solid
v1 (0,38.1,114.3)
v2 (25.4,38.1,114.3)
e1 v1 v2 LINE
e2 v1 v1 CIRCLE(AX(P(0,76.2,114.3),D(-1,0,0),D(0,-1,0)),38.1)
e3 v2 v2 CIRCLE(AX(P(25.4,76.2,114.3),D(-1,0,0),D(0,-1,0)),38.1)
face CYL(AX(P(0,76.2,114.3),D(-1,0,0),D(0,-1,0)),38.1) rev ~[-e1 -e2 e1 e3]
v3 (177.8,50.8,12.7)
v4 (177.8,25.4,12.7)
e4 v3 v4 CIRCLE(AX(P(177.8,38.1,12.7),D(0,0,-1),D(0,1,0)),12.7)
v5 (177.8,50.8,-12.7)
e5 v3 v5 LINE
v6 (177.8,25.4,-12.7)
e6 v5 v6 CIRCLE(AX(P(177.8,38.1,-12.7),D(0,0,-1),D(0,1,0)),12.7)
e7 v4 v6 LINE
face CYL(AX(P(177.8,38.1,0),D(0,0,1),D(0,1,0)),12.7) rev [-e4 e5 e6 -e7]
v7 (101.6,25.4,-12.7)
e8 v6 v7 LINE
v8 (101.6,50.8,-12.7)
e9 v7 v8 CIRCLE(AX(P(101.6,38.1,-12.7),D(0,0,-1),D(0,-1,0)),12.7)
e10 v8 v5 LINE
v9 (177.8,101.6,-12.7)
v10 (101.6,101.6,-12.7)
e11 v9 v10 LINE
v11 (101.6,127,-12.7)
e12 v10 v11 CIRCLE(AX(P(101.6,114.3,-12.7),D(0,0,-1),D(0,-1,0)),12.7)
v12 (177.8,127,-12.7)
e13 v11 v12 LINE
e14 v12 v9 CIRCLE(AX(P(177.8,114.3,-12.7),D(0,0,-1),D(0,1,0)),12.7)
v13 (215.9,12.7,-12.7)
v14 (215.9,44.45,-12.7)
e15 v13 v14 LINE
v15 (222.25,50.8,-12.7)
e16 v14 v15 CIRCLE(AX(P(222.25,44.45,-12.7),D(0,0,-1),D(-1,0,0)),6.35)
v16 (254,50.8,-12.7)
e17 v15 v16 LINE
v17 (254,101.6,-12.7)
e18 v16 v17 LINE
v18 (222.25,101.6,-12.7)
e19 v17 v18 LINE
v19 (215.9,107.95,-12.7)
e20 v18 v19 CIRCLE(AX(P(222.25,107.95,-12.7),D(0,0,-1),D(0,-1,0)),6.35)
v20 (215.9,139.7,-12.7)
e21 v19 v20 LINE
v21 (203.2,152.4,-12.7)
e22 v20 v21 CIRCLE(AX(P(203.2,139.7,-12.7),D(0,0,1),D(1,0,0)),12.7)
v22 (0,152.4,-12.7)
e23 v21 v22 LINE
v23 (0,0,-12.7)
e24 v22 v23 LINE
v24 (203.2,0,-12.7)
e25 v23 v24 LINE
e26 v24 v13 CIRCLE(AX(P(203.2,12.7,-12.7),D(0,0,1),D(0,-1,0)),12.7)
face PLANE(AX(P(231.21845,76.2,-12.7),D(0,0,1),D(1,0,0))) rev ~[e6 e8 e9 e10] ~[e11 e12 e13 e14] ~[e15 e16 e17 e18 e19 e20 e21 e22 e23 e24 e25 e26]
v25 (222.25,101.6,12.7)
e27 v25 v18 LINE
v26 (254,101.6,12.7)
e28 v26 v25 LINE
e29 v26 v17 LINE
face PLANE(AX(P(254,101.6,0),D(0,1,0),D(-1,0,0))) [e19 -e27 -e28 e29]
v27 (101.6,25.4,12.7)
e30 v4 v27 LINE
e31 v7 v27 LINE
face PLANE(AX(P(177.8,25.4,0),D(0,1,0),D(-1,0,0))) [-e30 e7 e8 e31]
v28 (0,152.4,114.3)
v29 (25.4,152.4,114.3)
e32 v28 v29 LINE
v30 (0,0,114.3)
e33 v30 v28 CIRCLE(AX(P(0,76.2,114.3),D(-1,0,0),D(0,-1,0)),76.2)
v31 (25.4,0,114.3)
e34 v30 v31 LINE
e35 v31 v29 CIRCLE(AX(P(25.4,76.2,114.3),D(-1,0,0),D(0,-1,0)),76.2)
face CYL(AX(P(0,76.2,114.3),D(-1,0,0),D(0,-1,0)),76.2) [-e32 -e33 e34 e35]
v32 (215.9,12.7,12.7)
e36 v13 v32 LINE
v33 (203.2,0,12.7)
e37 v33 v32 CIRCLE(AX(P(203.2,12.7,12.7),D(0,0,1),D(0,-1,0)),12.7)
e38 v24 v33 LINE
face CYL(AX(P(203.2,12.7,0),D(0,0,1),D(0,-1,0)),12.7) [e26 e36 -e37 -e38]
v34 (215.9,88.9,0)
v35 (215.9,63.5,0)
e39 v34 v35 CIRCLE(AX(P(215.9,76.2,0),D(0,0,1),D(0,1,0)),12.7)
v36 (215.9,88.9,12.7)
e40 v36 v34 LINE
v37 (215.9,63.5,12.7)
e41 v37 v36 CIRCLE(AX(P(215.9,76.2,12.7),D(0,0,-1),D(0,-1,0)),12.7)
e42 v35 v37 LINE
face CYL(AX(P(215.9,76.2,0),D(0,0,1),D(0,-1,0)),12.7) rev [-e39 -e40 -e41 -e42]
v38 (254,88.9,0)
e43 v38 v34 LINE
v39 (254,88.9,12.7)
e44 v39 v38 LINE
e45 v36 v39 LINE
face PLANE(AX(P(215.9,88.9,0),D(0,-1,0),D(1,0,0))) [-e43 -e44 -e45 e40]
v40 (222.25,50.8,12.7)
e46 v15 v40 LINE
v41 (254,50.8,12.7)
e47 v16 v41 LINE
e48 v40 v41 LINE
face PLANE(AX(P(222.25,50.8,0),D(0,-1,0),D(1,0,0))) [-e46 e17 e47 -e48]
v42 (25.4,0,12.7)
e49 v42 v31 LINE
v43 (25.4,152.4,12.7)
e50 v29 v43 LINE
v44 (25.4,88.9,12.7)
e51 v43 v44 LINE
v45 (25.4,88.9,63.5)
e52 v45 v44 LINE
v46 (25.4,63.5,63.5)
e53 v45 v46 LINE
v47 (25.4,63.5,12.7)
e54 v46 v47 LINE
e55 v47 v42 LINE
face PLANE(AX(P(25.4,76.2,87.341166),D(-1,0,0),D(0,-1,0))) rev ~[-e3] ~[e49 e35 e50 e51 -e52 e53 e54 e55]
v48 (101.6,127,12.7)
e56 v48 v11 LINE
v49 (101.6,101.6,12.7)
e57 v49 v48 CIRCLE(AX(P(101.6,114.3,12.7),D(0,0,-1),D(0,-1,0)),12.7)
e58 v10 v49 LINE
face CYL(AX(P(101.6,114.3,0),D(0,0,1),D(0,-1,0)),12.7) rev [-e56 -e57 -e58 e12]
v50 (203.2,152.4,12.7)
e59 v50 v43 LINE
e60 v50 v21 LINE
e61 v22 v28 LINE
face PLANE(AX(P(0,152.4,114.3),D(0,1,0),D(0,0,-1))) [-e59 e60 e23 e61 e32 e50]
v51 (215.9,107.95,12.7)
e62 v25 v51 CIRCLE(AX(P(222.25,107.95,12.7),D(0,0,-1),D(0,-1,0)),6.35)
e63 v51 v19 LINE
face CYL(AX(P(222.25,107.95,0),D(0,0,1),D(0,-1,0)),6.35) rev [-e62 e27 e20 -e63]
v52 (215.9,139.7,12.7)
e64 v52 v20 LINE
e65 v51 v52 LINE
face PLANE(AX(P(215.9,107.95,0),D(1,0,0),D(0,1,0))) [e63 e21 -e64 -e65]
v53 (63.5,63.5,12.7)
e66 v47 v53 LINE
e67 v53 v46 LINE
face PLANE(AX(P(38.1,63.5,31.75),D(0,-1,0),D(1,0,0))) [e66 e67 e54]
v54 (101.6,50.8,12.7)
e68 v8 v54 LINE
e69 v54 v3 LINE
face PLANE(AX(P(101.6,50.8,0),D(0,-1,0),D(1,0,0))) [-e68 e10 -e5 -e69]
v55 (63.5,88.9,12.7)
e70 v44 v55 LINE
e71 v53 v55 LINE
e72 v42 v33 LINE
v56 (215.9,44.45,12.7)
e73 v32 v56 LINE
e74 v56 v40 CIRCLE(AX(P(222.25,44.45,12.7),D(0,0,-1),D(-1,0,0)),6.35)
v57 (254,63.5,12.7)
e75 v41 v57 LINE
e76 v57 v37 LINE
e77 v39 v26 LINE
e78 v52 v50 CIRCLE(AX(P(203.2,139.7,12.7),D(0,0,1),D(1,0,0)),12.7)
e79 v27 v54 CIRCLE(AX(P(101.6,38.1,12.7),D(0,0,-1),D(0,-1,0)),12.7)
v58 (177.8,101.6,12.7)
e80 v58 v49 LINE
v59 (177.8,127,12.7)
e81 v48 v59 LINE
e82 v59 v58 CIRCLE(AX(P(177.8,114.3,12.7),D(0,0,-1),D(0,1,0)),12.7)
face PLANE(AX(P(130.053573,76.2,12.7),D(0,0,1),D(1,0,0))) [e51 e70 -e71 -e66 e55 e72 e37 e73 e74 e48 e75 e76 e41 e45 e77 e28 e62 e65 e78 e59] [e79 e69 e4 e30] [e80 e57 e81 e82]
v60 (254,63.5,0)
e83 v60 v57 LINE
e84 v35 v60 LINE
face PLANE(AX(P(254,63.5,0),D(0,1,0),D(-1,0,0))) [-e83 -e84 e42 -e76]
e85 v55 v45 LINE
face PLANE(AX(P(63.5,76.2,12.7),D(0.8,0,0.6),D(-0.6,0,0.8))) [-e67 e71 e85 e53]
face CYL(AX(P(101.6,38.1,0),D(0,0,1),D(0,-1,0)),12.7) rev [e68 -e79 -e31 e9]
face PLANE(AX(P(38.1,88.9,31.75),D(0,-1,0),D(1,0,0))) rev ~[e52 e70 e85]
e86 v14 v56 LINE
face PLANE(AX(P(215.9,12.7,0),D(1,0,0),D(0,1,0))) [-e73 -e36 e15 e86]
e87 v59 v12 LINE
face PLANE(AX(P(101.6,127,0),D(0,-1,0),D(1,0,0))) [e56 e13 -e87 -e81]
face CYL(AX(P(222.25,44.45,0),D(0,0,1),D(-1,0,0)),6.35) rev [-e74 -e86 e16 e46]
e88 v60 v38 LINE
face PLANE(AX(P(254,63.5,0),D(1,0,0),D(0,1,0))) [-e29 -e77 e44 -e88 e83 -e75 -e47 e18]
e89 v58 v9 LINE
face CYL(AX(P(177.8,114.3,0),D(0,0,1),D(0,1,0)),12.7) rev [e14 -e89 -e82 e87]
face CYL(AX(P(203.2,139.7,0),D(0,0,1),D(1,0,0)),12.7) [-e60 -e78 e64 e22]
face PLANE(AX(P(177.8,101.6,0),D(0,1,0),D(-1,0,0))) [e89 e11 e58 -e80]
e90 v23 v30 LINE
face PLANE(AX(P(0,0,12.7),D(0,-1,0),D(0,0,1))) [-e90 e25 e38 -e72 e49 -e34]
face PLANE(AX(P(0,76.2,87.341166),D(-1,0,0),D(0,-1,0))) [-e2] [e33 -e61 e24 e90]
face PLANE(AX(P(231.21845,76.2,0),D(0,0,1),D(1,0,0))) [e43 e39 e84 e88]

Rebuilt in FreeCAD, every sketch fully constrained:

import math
import FreeCAD as App
import Part
import Sketcher
from FreeCAD import Vector
Q = App.Units.Quantity

doc = App.newDocument("Part")
params = doc.addObject("Spreadsheet::Sheet", "Params")
for row, (alias, value) in enumerate([
    ("sketch1_radius", "0.5 in"),
    ("sketch1_width", "8 in"),
    ("sketch1_width2", "3 in"),
    ("sketch1_height", "6 in"),
    ("sketch1_radius2", "0.25 in"),
    ("pad1_length", "1 in"),
    ("sketch2_radius", "0.5 in"),
    ("sketch2_width", "1.5 in"),
    ("pad2_length", "0.5 in"),
    ("sketch3_diameter", "3 in"),
    ("sketch3_radius", "3 in"),
    ("sketch3_height", "4 in"),
    ("pad3_length", "1 in"),
    ("sketch4_height", "2 in"),
    ("sketch4_width", "1.5 in"),
    ("pad4_length", "1 in"),
], start=1):
    params.set(f"A{row}", alias)
    params.set(f"B{row}", "=" + value)
    params.setAlias(f"B{row}", alias)

body = doc.addObject("PartDesign::Body", "Body")

# Sketch on XY plane
sketch1 = body.newObject("Sketcher::SketchObject", "Sketch")
sketch1.AttachmentSupport = (doc.getObject("XY_Plane"), [""])
sketch1.MapMode = "FlatFace"
sketch1.addGeometry(Part.LineSegment(Vector(0, 152.4, 0), Vector(0, 0, 0)), False)
sketch1.addGeometry(Part.LineSegment(Vector(0, 0, 0), Vector(203.2, 0, 0)), False)
sketch1.addGeometry(Part.ArcOfCircle(Part.Circle(Vector(203.2, 12.7, 0), Vector(0, 0, 1), 12.7), math.radians(-90), math.radians(0)), False)
sketch1.addGeometry(Part.LineSegment(Vector(215.9, 12.7, 0), Vector(215.9, 44.45, 0)), False)
sketch1.addGeometry(Part.ArcOfCircle(Part.Circle(Vector(222.25, 44.45, 0), Vector(0, 0, 1), 6.35), math.radians(90), math.radians(180)), False)
sketch1.addGeometry(Part.LineSegment(Vector(222.25, 50.8, 0), Vector(254, 50.8, 0)), False)
sketch1.addGeometry(Part.LineSegment(Vector(254, 50.8, 0), Vector(254, 63.5, 0)), False)
sketch1.addGeometry(Part.LineSegment(Vector(254, 63.5, 0), Vector(215.9, 63.5, 0)), False)
sketch1.addGeometry(Part.ArcOfCircle(Part.Circle(Vector(215.9, 76.2, 0), Vector(0, 0, 1), 12.7), math.radians(90), math.radians(270)), False)
sketch1.addGeometry(Part.LineSegment(Vector(215.9, 88.9, 0), Vector(254, 88.9, 0)), False)
sketch1.addGeometry(Part.LineSegment(Vector(254, 88.9, 0), Vector(254, 101.6, 0)), False)
sketch1.addGeometry(Part.LineSegment(Vector(254, 101.6, 0), Vector(222.25, 101.6, 0)), False)
sketch1.addGeometry(Part.ArcOfCircle(Part.Circle(Vector(222.25, 107.95, 0), Vector(0, 0, 1), 6.35), math.radians(180), math.radians(270)), False)
sketch1.addGeometry(Part.LineSegment(Vector(215.9, 107.95, 0), Vector(215.9, 139.7, 0)), False)
sketch1.addGeometry(Part.ArcOfCircle(Part.Circle(Vector(203.2, 139.7, 0), Vector(0, 0, 1), 12.7), math.radians(0), math.radians(90)), False)
sketch1.addGeometry(Part.LineSegment(Vector(203.2, 152.4, 0), Vector(0, 152.4, 0)), False)
sketch1.addGeometry(Part.LineSegment(Vector(177.8, 25.4, 0), Vector(101.6, 25.4, 0)), False)
sketch1.addGeometry(Part.ArcOfCircle(Part.Circle(Vector(101.6, 38.1, 0), Vector(0, 0, 1), 12.7), math.radians(90), math.radians(270)), False)
sketch1.addGeometry(Part.LineSegment(Vector(101.6, 50.8, 0), Vector(177.8, 50.8, 0)), False)
sketch1.addGeometry(Part.ArcOfCircle(Part.Circle(Vector(177.8, 38.1, 0), Vector(0, 0, 1), 12.7), math.radians(-90), math.radians(90)), False)
sketch1.addGeometry(Part.LineSegment(Vector(177.8, 101.6, 0), Vector(101.6, 101.6, 0)), False)
sketch1.addGeometry(Part.ArcOfCircle(Part.Circle(Vector(101.6, 114.3, 0), Vector(0, 0, 1), 12.7), math.radians(90), math.radians(270)), False)
sketch1.addGeometry(Part.LineSegment(Vector(101.6, 127, 0), Vector(177.8, 127, 0)), False)
sketch1.addGeometry(Part.ArcOfCircle(Part.Circle(Vector(177.8, 114.3, 0), Vector(0, 0, 1), 12.7), math.radians(-90), math.radians(90)), False)
sketch1.addConstraint(Sketcher.Constraint("Coincident", 0, 2, 1, 1))
sketch1.addConstraint(Sketcher.Constraint("Tangent", 1, 2, 2, 1))
sketch1.addConstraint(Sketcher.Constraint("Tangent", 2, 2, 3, 1))
sketch1.addConstraint(Sketcher.Constraint("Tangent", 3, 2, 4, 2))
sketch1.addConstraint(Sketcher.Constraint("Tangent", 4, 1, 5, 1))
sketch1.addConstraint(Sketcher.Constraint("Coincident", 5, 2, 6, 1))
sketch1.addConstraint(Sketcher.Constraint("Coincident", 6, 2, 7, 1))
sketch1.addConstraint(Sketcher.Constraint("Tangent", 7, 2, 8, 2))
sketch1.addConstraint(Sketcher.Constraint("Tangent", 8, 1, 9, 1))
sketch1.addConstraint(Sketcher.Constraint("Coincident", 9, 2, 10, 1))
sketch1.addConstraint(Sketcher.Constraint("Coincident", 10, 2, 11, 1))
sketch1.addConstraint(Sketcher.Constraint("Tangent", 11, 2, 12, 2))
sketch1.addConstraint(Sketcher.Constraint("Tangent", 12, 1, 13, 1))
sketch1.addConstraint(Sketcher.Constraint("Tangent", 13, 2, 14, 1))
sketch1.addConstraint(Sketcher.Constraint("Tangent", 14, 2, 15, 1))
sketch1.addConstraint(Sketcher.Constraint("Coincident", 15, 2, 0, 1))
sketch1.addConstraint(Sketcher.Constraint("Tangent", 16, 2, 17, 2))
sketch1.addConstraint(Sketcher.Constraint("Tangent", 17, 1, 18, 1))
sketch1.addConstraint(Sketcher.Constraint("Tangent", 18, 2, 19, 2))
sketch1.addConstraint(Sketcher.Constraint("Tangent", 19, 1, 16, 1))
sketch1.addConstraint(Sketcher.Constraint("Tangent", 20, 2, 21, 2))
sketch1.addConstraint(Sketcher.Constraint("Tangent", 21, 1, 22, 1))
sketch1.addConstraint(Sketcher.Constraint("Tangent", 22, 2, 23, 2))
sketch1.addConstraint(Sketcher.Constraint("Tangent", 23, 1, 20, 1))
sketch1.addConstraint(Sketcher.Constraint("Vertical", 0))
sketch1.addConstraint(Sketcher.Constraint("Horizontal", 1))
sketch1.addConstraint(Sketcher.Constraint("Vertical", 3))
sketch1.addConstraint(Sketcher.Constraint("Horizontal", 5))
sketch1.addConstraint(Sketcher.Constraint("Vertical", 6))
sketch1.addConstraint(Sketcher.Constraint("Horizontal", 7))
sketch1.addConstraint(Sketcher.Constraint("Horizontal", 9))
sketch1.addConstraint(Sketcher.Constraint("Vertical", 10))
sketch1.addConstraint(Sketcher.Constraint("Horizontal", 11))
sketch1.addConstraint(Sketcher.Constraint("Vertical", 13))
sketch1.addConstraint(Sketcher.Constraint("Horizontal", 15))
sketch1.addConstraint(Sketcher.Constraint("Horizontal", 16))
sketch1.addConstraint(Sketcher.Constraint("Horizontal", 18))
sketch1.addConstraint(Sketcher.Constraint("Horizontal", 20))
sketch1.addConstraint(Sketcher.Constraint("Horizontal", 22))
sketch1.addConstraint(Sketcher.Constraint("Coincident", 0, 2, -1, 1))
sketch1.addConstraint(Sketcher.Constraint("Equal", 2, 8))
sketch1.addConstraint(Sketcher.Constraint("Equal", 4, 12))
sketch1.addConstraint(Sketcher.Constraint("Equal", 8, 14))
sketch1.addConstraint(Sketcher.Constraint("Equal", 14, 17))
sketch1.addConstraint(Sketcher.Constraint("Equal", 19, 21))
sketch1.addConstraint(Sketcher.Constraint("Horizontal", 5, 2, 17, 1))
sketch1.addConstraint(Sketcher.Constraint("Horizontal", 11, 2, 20, 2))
sketch1.addConstraint(Sketcher.Constraint("Vertical", 4, 3, 12, 3))
sketch1.addConstraint(Sketcher.Constraint("Vertical", 17, 3, 21, 3))
sketch1.addConstraint(Sketcher.Constraint("Vertical", 19, 3, 23, 3))
sketch1.addConstraint(Sketcher.Constraint("Vertical", 8, 3, 2, 2))
sketch1.addConstraint(Sketcher.Constraint("Vertical", 6, 2, 9, 2))
sketch1.addConstraint(Sketcher.Constraint("Equal", 11, 3))
sketch1.addConstraint(Sketcher.Constraint("Equal", 6, 10))
sketch1.addConstraint(Sketcher.Constraint("Equal", 3, 13))
sketch1.addConstraint(Sketcher.Constraint("Radius", 2, Q("0.5 in")))
sketch1.addConstraint(Sketcher.Constraint("DistanceX", 1, 1, 1, 2, Q("8 in")))
sketch1.addConstraint(Sketcher.Constraint("DistanceX", 16, 2, 16, 1, Q("3 in")))
sketch1.addConstraint(Sketcher.Constraint("DistanceY", 0, 2, 0, 1, Q("6 in")))
sketch1.addConstraint(Sketcher.Constraint("Radius", 4, Q("0.25 in")))
sketch1.addConstraint(Sketcher.Constraint("DistanceX", 7, 2, 7, 1, Q("1.5 in")))
sketch1.addConstraint(Sketcher.Constraint("DistanceX", -1, 1, 17, 3, Q("4 in")))
sketch1.setExpression("Constraints[55]", "Params.sketch1_radius")
sketch1.setExpression("Constraints[56]", "Params.sketch1_width")
sketch1.setExpression("Constraints[57]", "Params.sketch1_width2")
sketch1.setExpression("Constraints[58]", "Params.sketch1_height")
sketch1.setExpression("Constraints[59]", "Params.sketch1_radius2")
pad1 = body.newObject("PartDesign::Pad", "Pad")
pad1.Profile = sketch1
pad1.setExpression("Length", "Params.pad1_length")
pad1.Midplane = True

# Sketch on XY plane
sketch2 = body.newObject("Sketcher::SketchObject", "Sketch001")
sketch2.AttachmentSupport = (doc.getObject("XY_Plane"), [""])
sketch2.MapMode = "FlatFace"
sketch2.addGeometry(Part.LineSegment(Vector(215.9, 63.5, 0), Vector(254, 63.5, 0)), False)
sketch2.addGeometry(Part.LineSegment(Vector(254, 63.5, 0), Vector(254, 88.9, 0)), False)
sketch2.addGeometry(Part.LineSegment(Vector(254, 88.9, 0), Vector(215.9, 88.9, 0)), False)
sketch2.addGeometry(Part.ArcOfCircle(Part.Circle(Vector(215.9, 76.2, 0), Vector(0, 0, 1), 12.7), math.radians(90), math.radians(270)), False)
sketch2.addConstraint(Sketcher.Constraint("Coincident", 0, 2, 1, 1))
sketch2.addConstraint(Sketcher.Constraint("Coincident", 1, 2, 2, 1))
sketch2.addConstraint(Sketcher.Constraint("Tangent", 2, 2, 3, 1))
sketch2.addConstraint(Sketcher.Constraint("Tangent", 3, 2, 0, 1))
sketch2.addConstraint(Sketcher.Constraint("Horizontal", 0))
sketch2.addConstraint(Sketcher.Constraint("Vertical", 1))
sketch2.addConstraint(Sketcher.Constraint("Horizontal", 2))
sketch2.addConstraint(Sketcher.Constraint("Radius", 3, Q("0.5 in")))
sketch2.addConstraint(Sketcher.Constraint("DistanceX", 0, 1, 0, 2, Q("1.5 in")))
sketch2.addConstraint(Sketcher.Constraint("DistanceY", -1, 1, 3, 3, Q("3 in")))
sketch2.addConstraint(Sketcher.Constraint("DistanceX", -1, 1, 0, 2, Q("10 in")))
sketch2.setExpression("Constraints[7]", "Params.sketch2_radius")
sketch2.setExpression("Constraints[8]", "Params.sketch2_width")
pad2 = body.newObject("PartDesign::Pad", "Pad001")
pad2.Profile = sketch2
pad2.setExpression("Length", "Params.pad2_length")
pad2.Reversed = True

# Sketch on YZ plane
sketch3 = body.newObject("Sketcher::SketchObject", "Sketch002")
sketch3.AttachmentSupport = (doc.getObject("YZ_Plane"), [""])
sketch3.MapMode = "FlatFace"
sketch3.addGeometry(Part.LineSegment(Vector(152.4, 12.7, 0), Vector(0, 12.7, 0)), False)
sketch3.addGeometry(Part.LineSegment(Vector(0, 12.7, 0), Vector(0, 114.3, 0)), False)
sketch3.addGeometry(Part.ArcOfCircle(Part.Circle(Vector(76.2, 114.3, 0), Vector(0, 0, 1), 76.2), math.radians(0), math.radians(180)), False)
sketch3.addGeometry(Part.LineSegment(Vector(152.4, 114.3, 0), Vector(152.4, 12.7, 0)), False)
sketch3.addGeometry(Part.Circle(Vector(76.2, 114.3, 0), Vector(0, 0, 1), 38.1), False)
sketch3.addConstraint(Sketcher.Constraint("Coincident", 0, 2, 1, 1))
sketch3.addConstraint(Sketcher.Constraint("Tangent", 1, 2, 2, 2))
sketch3.addConstraint(Sketcher.Constraint("Tangent", 2, 1, 3, 1))
sketch3.addConstraint(Sketcher.Constraint("Coincident", 3, 2, 0, 1))
sketch3.addConstraint(Sketcher.Constraint("Horizontal", 0))
sketch3.addConstraint(Sketcher.Constraint("Vertical", 1))
sketch3.addConstraint(Sketcher.Constraint("Vertical", 3))
sketch3.addConstraint(Sketcher.Constraint("Coincident", 4, 3, 2, 3))
sketch3.addConstraint(Sketcher.Constraint("PointOnObject", 0, 2, -2))
sketch3.addConstraint(Sketcher.Constraint("Diameter", 4, Q("3 in")))
sketch3.addConstraint(Sketcher.Constraint("Radius", 2, Q("3 in")))
sketch3.addConstraint(Sketcher.Constraint("DistanceY", 1, 1, 1, 2, Q("4 in")))
sketch3.addConstraint(Sketcher.Constraint("DistanceY", -1, 1, 2, 3, Q("4.5 in")))
sketch3.setExpression("Constraints[9]", "Params.sketch3_diameter")
sketch3.setExpression("Constraints[10]", "Params.sketch3_radius")
sketch3.setExpression("Constraints[11]", "Params.sketch3_height")
pad3 = body.newObject("PartDesign::Pad", "Pad002")
pad3.Profile = sketch3
pad3.setExpression("Length", "Params.pad3_length")

# Sketch on XZ plane
sketch4 = body.newObject("Sketcher::SketchObject", "Sketch003")
sketch4.AttachmentSupport = (doc.getObject("XZ_Plane"), [""])
sketch4.MapMode = "FlatFace"
sketch4.AttachmentOffset = App.Placement(Vector(0, 0, -3 * 25.4), App.Rotation())
sketch4.addGeometry(Part.LineSegment(Vector(63.5, 12.7, 0), Vector(25.4, 63.5, 0)), False)
sketch4.addGeometry(Part.LineSegment(Vector(25.4, 63.5, 0), Vector(25.4, 12.7, 0)), False)
sketch4.addGeometry(Part.LineSegment(Vector(25.4, 12.7, 0), Vector(63.5, 12.7, 0)), False)
sketch4.addConstraint(Sketcher.Constraint("Coincident", 0, 2, 1, 1))
sketch4.addConstraint(Sketcher.Constraint("Coincident", 1, 2, 2, 1))
sketch4.addConstraint(Sketcher.Constraint("Coincident", 2, 2, 0, 1))
sketch4.addConstraint(Sketcher.Constraint("Vertical", 1))
sketch4.addConstraint(Sketcher.Constraint("Horizontal", 2))
sketch4.addConstraint(Sketcher.Constraint("DistanceY", 1, 2, 1, 1, Q("2 in")))
sketch4.addConstraint(Sketcher.Constraint("DistanceX", 2, 1, 2, 2, Q("1.5 in")))
sketch4.addConstraint(Sketcher.Constraint("DistanceX", -1, 1, 0, 2, Q("1 in")))
sketch4.addConstraint(Sketcher.Constraint("DistanceY", -1, 1, 0, 2, Q("2.5 in")))
sketch4.setExpression("Constraints[5]", "Params.sketch4_height")
sketch4.setExpression("Constraints[6]", "Params.sketch4_width")
pad4 = body.newObject("PartDesign::Pad", "Pad003")
pad4.Profile = sketch4
pad4.setExpression("Length", "Params.pad4_length")
pad4.Midplane = True

doc.recompute()
